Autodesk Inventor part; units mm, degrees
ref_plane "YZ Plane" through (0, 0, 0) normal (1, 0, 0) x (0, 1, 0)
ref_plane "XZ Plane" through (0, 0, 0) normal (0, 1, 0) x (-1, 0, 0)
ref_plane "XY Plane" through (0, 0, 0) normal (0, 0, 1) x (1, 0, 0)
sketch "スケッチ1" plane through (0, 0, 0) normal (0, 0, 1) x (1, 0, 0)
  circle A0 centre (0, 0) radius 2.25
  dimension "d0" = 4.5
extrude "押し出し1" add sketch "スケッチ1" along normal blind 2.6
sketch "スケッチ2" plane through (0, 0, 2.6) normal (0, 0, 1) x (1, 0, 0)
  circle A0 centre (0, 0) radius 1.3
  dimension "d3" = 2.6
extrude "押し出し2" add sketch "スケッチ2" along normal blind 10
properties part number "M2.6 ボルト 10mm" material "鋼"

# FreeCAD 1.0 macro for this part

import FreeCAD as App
import Part
import Sketcher
Q = App.Units.Quantity

doc = App.newDocument("Part")
body = doc.addObject("PartDesign::Body", "Body")

# Sketch on XY plane
sketch1 = body.newObject("Sketcher::SketchObject", "Sketch")
sketch1.AttachmentSupport = (doc.getObject("XY_Plane"), [""])
sketch1.MapMode = "FlatFace"
sketch1.addGeometry(Part.Circle(App.Vector(0, 0, 0), App.Vector(0, 0, 1), 2.2), False)
sketch1.addConstraint([
    Sketcher.Constraint("Coincident", 0, 3, -1, 1),
    Sketcher.Constraint("Diameter", 0, Q("4.5 mm")),
])
pad1 = body.newObject("PartDesign::Pad", "Pad")
pad1.Profile = sketch1
pad1.Length = 2.6

# Sketch on XY plane
sketch2 = body.newObject("Sketcher::SketchObject", "Sketch001")
sketch2.AttachmentSupport = (doc.getObject("XY_Plane"), [""])
sketch2.MapMode = "FlatFace"
sketch2.AttachmentOffset = App.Placement(App.Vector(0, 0, 2.6), App.Rotation())
sketch2.addGeometry(Part.Circle(App.Vector(0, 0, 0), App.Vector(0, 0, 1), 1.3), False)
sketch2.addConstraint([
    Sketcher.Constraint("Coincident", 0, 3, -1, 1),
    Sketcher.Constraint("Diameter", 0, Q("2.6 mm")),
])
pad2 = body.newObject("PartDesign::Pad", "Pad001")
pad2.Profile = sketch2
pad2.Length = 10

doc.recompute()
